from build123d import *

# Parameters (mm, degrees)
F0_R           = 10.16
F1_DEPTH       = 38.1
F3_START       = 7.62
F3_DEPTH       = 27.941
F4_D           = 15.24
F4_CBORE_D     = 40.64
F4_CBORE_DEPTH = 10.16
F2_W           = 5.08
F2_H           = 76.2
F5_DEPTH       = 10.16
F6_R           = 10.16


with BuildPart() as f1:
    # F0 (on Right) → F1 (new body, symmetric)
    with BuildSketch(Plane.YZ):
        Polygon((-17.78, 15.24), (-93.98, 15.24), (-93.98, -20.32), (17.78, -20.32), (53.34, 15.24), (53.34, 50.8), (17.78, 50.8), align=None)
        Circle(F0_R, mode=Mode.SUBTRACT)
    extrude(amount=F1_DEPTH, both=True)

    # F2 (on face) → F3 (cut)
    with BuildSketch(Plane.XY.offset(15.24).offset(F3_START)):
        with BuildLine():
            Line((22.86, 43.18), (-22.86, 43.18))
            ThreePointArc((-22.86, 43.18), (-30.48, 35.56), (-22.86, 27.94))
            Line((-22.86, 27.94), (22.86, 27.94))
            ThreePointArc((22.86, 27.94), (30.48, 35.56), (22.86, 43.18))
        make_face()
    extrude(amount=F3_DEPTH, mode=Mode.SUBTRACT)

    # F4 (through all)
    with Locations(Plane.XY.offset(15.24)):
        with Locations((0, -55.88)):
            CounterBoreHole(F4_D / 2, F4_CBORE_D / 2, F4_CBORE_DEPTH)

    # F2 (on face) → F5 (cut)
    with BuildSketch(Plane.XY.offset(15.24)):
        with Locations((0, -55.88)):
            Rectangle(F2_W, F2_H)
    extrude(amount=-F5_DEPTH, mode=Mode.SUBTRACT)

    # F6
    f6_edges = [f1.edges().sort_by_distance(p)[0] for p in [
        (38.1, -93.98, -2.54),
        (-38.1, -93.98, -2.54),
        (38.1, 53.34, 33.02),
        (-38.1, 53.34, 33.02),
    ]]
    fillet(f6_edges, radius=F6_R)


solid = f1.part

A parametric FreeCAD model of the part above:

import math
import FreeCAD as App
import Part
import Sketcher
from FreeCAD import Vector
Q = App.Units.Quantity


def edges_at(feature, points):
    """Names of the edges that pass closest to the given points."""
    edges = feature.Shape.Edges
    near = lambda p: min(range(len(edges)), key=lambda i: edges[i].distToShape(Part.Vertex(*p))[0])
    return sorted({f"Edge{near(p) + 1}" for p in points})


def add_polygon(sketch, points):
    """Adds a closed chain of lines whose ends are joined by coincident constraints."""
    first, n = sketch.GeometryCount, len(points)
    for a, b in zip(points, points[1:] + points[:1]):
        sketch.addGeometry(Part.LineSegment(App.Vector(*a, 0), App.Vector(*b, 0)), False)
    for i in range(n):
        sketch.addConstraint(Sketcher.Constraint("Coincident", first + i, 2, first + (i + 1) % n, 1))

doc = App.newDocument("Part")
body = doc.addObject("PartDesign::Body", "Body")

# Sketch on YZ plane
sketch1 = doc.addObject("Sketcher::SketchObject", "Sketch")
body.addObject(sketch1)
sketch1.AttachmentSupport = (doc.YZ_Plane, [""])
sketch1.MapMode = "FlatFace"
add_polygon(sketch1, [(-18, 15), (-94, 15), (-94, -20), (18, -20), (53, 15), (53, 51), (18, 51)])  # lines 0-6
sketch1.addGeometry(Part.Circle(Vector(0, 0, 0), Vector(0, 0, 1), 10), False)  # 7
sketch1.addConstraint([
    Sketcher.Constraint("Horizontal", 0),
    Sketcher.Constraint("Vertical", 1),
    Sketcher.Constraint("Horizontal", 2),
    Sketcher.Constraint("Vertical", 4),
    Sketcher.Constraint("Horizontal", 5),
    Sketcher.Constraint("Coincident", 7, 3, -1, 1),
    Sketcher.Constraint("Parallel", 3, 6),
    Sketcher.Constraint("Horizontal", 0, 2, 3, 2),
    Sketcher.Constraint("Vertical", 2, 2, 5, 2),
    Sketcher.Constraint("Equal", 5, 1),
    Sketcher.Constraint("Equal", 1, 4),
    Sketcher.Constraint("Diameter", 7, Q("0.8 in")),
    Sketcher.Constraint("DistanceX", 0, 2, 0, 1, Q("3 in")),
    Sketcher.Constraint("DistanceX", 2, 1, 2, 2, Q("4.4 in")),
    Sketcher.Constraint("DistanceY", -1, 1, 4, 2, Q("2 in")),
    Sketcher.Constraint("DistanceX", 0, 2, -1, 1, Q("3.7 in")),
])
pad1 = doc.addObject("PartDesign::Pad", "Pad")
body.addObject(pad1)
pad1.Profile = sketch1
pad1.Length = Q("3 in")
pad1.Midplane = True

# Sketch on XY plane
sketch2 = doc.addObject("Sketcher::SketchObject", "Sketch001")
body.addObject(sketch2)
sketch2.AttachmentSupport = (doc.XY_Plane, [""])
sketch2.MapMode = "FlatFace"
sketch2.AttachmentOffset = App.Placement(Vector(0, 0, 0.9 * 25.4), App.Rotation())
sketch2.addGeometry([
    Part.LineSegment(Vector(23, 43, 0), Vector(-23, 43, 0)),
    Part.ArcOfCircle(Part.Circle(Vector(-23, 36, 0), Vector(0, 0, 1), 8), math.radians(90), math.radians(270)),
    Part.LineSegment(Vector(-23, 28, 0), Vector(23, 28, 0)),
    Part.ArcOfCircle(Part.Circle(Vector(23, 36, 0), Vector(0, 0, 1), 8), math.radians(-90), math.radians(90)),
], False)
sketch2.addConstraint([
    Sketcher.Constraint("Tangent", 0, 2, 1, 1),
    Sketcher.Constraint("Tangent", 1, 2, 2, 1),
    Sketcher.Constraint("Tangent", 2, 2, 3, 1),
    Sketcher.Constraint("Tangent", 3, 2, 0, 1),
    Sketcher.Constraint("Horizontal", 0),
    Sketcher.Constraint("Horizontal", 2),
    Sketcher.Constraint("Radius", 1, Q("0.3 in")),
    Sketcher.Constraint("DistanceX", 0, 2, 0, 1, Q("1.8 in")),
    Sketcher.Constraint("DistanceX", 1, 3, -1, 1, Q("0.9 in")),
    Sketcher.Constraint("DistanceY", -1, 1, 1, 3, Q("1.4 in")),
])
pocket1 = doc.addObject("PartDesign::Pocket", "Pocket")
body.addObject(pocket1)
pocket1.Profile = sketch2
pocket1.Length = 27.941
pocket1.Reversed = True

# Sketch on XY plane
sketch3 = doc.addObject("Sketcher::SketchObject", "Sketch002")
body.addObject(sketch3)
sketch3.AttachmentSupport = (doc.XY_Plane, [""])
sketch3.MapMode = "FlatFace"
sketch3.AttachmentOffset = App.Placement(Vector(0, 0, 0.6 * 25.4), App.Rotation())
sketch3.addGeometry(Part.Circle(Vector(0, -56, 0), Vector(0, 0, 1), 8), False)
sketch3.addConstraint([
    Sketcher.Constraint("PointOnObject", 0, 3, -2),
    Sketcher.Constraint("Diameter", 0, Q("0.6 in")),
    Sketcher.Constraint("DistanceY", 0, 3, -1, 1, Q("2.2 in")),
])
doc.recompute()
hole = doc.addObject("PartDesign::Hole", "Hole")
body.addObject(hole)
hole.Profile = sketch3
hole.ThreadType = "None"
hole.Diameter = Q("0.6 in")
hole.DepthType = "ThroughAll"
hole.HoleCutType = "Counterbore"
hole.HoleCutDiameter = Q("1.6 in")
hole.HoleCutDepth = Q("0.4 in")

# Sketch on XY plane
sketch4 = doc.addObject("Sketcher::SketchObject", "Sketch003")
body.addObject(sketch4)
sketch4.AttachmentSupport = (doc.XY_Plane, [""])
sketch4.MapMode = "FlatFace"
sketch4.AttachmentOffset = App.Placement(Vector(0, 0, 0.6 * 25.4), App.Rotation())
add_polygon(sketch4, [(-3, -18), (-3, -94), (3, -94), (3, -18)])  # lines 0-3
sketch4.addConstraint([
    Sketcher.Constraint("Vertical", 0),
    Sketcher.Constraint("Horizontal", 1),
    Sketcher.Constraint("Vertical", 2),
    Sketcher.Constraint("Horizontal", 3),
    Sketcher.Constraint("DistanceY", 0, 2, 0, 1, Q("3 in")),
    Sketcher.Constraint("DistanceX", 1, 1, 1, 2, Q("0.2 in")),
    Sketcher.Constraint("DistanceX", 0, 2, -1, 1, Q("0.1 in")),
    Sketcher.Constraint("DistanceY", 0, 2, -1, 1, Q("3.7 in")),
])
pocket2 = doc.addObject("PartDesign::Pocket", "Pocket001")
body.addObject(pocket2)
pocket2.Profile = sketch4
pocket2.Length = Q("0.4 in")
doc.recompute()

fillet = doc.addObject("PartDesign::Fillet", "Fillet")
body.addObject(fillet)
fillet.Base = (pocket2, edges_at(pocket2, [
    (38.1, -93.98, -2.54),
    (-38.1, -93.98, -2.54),
    (38.1, 53.34, 33.02),
    (-38.1, 53.34, 33.02),
]))
fillet.Radius = Q("0.4 in")

doc.recompute()
